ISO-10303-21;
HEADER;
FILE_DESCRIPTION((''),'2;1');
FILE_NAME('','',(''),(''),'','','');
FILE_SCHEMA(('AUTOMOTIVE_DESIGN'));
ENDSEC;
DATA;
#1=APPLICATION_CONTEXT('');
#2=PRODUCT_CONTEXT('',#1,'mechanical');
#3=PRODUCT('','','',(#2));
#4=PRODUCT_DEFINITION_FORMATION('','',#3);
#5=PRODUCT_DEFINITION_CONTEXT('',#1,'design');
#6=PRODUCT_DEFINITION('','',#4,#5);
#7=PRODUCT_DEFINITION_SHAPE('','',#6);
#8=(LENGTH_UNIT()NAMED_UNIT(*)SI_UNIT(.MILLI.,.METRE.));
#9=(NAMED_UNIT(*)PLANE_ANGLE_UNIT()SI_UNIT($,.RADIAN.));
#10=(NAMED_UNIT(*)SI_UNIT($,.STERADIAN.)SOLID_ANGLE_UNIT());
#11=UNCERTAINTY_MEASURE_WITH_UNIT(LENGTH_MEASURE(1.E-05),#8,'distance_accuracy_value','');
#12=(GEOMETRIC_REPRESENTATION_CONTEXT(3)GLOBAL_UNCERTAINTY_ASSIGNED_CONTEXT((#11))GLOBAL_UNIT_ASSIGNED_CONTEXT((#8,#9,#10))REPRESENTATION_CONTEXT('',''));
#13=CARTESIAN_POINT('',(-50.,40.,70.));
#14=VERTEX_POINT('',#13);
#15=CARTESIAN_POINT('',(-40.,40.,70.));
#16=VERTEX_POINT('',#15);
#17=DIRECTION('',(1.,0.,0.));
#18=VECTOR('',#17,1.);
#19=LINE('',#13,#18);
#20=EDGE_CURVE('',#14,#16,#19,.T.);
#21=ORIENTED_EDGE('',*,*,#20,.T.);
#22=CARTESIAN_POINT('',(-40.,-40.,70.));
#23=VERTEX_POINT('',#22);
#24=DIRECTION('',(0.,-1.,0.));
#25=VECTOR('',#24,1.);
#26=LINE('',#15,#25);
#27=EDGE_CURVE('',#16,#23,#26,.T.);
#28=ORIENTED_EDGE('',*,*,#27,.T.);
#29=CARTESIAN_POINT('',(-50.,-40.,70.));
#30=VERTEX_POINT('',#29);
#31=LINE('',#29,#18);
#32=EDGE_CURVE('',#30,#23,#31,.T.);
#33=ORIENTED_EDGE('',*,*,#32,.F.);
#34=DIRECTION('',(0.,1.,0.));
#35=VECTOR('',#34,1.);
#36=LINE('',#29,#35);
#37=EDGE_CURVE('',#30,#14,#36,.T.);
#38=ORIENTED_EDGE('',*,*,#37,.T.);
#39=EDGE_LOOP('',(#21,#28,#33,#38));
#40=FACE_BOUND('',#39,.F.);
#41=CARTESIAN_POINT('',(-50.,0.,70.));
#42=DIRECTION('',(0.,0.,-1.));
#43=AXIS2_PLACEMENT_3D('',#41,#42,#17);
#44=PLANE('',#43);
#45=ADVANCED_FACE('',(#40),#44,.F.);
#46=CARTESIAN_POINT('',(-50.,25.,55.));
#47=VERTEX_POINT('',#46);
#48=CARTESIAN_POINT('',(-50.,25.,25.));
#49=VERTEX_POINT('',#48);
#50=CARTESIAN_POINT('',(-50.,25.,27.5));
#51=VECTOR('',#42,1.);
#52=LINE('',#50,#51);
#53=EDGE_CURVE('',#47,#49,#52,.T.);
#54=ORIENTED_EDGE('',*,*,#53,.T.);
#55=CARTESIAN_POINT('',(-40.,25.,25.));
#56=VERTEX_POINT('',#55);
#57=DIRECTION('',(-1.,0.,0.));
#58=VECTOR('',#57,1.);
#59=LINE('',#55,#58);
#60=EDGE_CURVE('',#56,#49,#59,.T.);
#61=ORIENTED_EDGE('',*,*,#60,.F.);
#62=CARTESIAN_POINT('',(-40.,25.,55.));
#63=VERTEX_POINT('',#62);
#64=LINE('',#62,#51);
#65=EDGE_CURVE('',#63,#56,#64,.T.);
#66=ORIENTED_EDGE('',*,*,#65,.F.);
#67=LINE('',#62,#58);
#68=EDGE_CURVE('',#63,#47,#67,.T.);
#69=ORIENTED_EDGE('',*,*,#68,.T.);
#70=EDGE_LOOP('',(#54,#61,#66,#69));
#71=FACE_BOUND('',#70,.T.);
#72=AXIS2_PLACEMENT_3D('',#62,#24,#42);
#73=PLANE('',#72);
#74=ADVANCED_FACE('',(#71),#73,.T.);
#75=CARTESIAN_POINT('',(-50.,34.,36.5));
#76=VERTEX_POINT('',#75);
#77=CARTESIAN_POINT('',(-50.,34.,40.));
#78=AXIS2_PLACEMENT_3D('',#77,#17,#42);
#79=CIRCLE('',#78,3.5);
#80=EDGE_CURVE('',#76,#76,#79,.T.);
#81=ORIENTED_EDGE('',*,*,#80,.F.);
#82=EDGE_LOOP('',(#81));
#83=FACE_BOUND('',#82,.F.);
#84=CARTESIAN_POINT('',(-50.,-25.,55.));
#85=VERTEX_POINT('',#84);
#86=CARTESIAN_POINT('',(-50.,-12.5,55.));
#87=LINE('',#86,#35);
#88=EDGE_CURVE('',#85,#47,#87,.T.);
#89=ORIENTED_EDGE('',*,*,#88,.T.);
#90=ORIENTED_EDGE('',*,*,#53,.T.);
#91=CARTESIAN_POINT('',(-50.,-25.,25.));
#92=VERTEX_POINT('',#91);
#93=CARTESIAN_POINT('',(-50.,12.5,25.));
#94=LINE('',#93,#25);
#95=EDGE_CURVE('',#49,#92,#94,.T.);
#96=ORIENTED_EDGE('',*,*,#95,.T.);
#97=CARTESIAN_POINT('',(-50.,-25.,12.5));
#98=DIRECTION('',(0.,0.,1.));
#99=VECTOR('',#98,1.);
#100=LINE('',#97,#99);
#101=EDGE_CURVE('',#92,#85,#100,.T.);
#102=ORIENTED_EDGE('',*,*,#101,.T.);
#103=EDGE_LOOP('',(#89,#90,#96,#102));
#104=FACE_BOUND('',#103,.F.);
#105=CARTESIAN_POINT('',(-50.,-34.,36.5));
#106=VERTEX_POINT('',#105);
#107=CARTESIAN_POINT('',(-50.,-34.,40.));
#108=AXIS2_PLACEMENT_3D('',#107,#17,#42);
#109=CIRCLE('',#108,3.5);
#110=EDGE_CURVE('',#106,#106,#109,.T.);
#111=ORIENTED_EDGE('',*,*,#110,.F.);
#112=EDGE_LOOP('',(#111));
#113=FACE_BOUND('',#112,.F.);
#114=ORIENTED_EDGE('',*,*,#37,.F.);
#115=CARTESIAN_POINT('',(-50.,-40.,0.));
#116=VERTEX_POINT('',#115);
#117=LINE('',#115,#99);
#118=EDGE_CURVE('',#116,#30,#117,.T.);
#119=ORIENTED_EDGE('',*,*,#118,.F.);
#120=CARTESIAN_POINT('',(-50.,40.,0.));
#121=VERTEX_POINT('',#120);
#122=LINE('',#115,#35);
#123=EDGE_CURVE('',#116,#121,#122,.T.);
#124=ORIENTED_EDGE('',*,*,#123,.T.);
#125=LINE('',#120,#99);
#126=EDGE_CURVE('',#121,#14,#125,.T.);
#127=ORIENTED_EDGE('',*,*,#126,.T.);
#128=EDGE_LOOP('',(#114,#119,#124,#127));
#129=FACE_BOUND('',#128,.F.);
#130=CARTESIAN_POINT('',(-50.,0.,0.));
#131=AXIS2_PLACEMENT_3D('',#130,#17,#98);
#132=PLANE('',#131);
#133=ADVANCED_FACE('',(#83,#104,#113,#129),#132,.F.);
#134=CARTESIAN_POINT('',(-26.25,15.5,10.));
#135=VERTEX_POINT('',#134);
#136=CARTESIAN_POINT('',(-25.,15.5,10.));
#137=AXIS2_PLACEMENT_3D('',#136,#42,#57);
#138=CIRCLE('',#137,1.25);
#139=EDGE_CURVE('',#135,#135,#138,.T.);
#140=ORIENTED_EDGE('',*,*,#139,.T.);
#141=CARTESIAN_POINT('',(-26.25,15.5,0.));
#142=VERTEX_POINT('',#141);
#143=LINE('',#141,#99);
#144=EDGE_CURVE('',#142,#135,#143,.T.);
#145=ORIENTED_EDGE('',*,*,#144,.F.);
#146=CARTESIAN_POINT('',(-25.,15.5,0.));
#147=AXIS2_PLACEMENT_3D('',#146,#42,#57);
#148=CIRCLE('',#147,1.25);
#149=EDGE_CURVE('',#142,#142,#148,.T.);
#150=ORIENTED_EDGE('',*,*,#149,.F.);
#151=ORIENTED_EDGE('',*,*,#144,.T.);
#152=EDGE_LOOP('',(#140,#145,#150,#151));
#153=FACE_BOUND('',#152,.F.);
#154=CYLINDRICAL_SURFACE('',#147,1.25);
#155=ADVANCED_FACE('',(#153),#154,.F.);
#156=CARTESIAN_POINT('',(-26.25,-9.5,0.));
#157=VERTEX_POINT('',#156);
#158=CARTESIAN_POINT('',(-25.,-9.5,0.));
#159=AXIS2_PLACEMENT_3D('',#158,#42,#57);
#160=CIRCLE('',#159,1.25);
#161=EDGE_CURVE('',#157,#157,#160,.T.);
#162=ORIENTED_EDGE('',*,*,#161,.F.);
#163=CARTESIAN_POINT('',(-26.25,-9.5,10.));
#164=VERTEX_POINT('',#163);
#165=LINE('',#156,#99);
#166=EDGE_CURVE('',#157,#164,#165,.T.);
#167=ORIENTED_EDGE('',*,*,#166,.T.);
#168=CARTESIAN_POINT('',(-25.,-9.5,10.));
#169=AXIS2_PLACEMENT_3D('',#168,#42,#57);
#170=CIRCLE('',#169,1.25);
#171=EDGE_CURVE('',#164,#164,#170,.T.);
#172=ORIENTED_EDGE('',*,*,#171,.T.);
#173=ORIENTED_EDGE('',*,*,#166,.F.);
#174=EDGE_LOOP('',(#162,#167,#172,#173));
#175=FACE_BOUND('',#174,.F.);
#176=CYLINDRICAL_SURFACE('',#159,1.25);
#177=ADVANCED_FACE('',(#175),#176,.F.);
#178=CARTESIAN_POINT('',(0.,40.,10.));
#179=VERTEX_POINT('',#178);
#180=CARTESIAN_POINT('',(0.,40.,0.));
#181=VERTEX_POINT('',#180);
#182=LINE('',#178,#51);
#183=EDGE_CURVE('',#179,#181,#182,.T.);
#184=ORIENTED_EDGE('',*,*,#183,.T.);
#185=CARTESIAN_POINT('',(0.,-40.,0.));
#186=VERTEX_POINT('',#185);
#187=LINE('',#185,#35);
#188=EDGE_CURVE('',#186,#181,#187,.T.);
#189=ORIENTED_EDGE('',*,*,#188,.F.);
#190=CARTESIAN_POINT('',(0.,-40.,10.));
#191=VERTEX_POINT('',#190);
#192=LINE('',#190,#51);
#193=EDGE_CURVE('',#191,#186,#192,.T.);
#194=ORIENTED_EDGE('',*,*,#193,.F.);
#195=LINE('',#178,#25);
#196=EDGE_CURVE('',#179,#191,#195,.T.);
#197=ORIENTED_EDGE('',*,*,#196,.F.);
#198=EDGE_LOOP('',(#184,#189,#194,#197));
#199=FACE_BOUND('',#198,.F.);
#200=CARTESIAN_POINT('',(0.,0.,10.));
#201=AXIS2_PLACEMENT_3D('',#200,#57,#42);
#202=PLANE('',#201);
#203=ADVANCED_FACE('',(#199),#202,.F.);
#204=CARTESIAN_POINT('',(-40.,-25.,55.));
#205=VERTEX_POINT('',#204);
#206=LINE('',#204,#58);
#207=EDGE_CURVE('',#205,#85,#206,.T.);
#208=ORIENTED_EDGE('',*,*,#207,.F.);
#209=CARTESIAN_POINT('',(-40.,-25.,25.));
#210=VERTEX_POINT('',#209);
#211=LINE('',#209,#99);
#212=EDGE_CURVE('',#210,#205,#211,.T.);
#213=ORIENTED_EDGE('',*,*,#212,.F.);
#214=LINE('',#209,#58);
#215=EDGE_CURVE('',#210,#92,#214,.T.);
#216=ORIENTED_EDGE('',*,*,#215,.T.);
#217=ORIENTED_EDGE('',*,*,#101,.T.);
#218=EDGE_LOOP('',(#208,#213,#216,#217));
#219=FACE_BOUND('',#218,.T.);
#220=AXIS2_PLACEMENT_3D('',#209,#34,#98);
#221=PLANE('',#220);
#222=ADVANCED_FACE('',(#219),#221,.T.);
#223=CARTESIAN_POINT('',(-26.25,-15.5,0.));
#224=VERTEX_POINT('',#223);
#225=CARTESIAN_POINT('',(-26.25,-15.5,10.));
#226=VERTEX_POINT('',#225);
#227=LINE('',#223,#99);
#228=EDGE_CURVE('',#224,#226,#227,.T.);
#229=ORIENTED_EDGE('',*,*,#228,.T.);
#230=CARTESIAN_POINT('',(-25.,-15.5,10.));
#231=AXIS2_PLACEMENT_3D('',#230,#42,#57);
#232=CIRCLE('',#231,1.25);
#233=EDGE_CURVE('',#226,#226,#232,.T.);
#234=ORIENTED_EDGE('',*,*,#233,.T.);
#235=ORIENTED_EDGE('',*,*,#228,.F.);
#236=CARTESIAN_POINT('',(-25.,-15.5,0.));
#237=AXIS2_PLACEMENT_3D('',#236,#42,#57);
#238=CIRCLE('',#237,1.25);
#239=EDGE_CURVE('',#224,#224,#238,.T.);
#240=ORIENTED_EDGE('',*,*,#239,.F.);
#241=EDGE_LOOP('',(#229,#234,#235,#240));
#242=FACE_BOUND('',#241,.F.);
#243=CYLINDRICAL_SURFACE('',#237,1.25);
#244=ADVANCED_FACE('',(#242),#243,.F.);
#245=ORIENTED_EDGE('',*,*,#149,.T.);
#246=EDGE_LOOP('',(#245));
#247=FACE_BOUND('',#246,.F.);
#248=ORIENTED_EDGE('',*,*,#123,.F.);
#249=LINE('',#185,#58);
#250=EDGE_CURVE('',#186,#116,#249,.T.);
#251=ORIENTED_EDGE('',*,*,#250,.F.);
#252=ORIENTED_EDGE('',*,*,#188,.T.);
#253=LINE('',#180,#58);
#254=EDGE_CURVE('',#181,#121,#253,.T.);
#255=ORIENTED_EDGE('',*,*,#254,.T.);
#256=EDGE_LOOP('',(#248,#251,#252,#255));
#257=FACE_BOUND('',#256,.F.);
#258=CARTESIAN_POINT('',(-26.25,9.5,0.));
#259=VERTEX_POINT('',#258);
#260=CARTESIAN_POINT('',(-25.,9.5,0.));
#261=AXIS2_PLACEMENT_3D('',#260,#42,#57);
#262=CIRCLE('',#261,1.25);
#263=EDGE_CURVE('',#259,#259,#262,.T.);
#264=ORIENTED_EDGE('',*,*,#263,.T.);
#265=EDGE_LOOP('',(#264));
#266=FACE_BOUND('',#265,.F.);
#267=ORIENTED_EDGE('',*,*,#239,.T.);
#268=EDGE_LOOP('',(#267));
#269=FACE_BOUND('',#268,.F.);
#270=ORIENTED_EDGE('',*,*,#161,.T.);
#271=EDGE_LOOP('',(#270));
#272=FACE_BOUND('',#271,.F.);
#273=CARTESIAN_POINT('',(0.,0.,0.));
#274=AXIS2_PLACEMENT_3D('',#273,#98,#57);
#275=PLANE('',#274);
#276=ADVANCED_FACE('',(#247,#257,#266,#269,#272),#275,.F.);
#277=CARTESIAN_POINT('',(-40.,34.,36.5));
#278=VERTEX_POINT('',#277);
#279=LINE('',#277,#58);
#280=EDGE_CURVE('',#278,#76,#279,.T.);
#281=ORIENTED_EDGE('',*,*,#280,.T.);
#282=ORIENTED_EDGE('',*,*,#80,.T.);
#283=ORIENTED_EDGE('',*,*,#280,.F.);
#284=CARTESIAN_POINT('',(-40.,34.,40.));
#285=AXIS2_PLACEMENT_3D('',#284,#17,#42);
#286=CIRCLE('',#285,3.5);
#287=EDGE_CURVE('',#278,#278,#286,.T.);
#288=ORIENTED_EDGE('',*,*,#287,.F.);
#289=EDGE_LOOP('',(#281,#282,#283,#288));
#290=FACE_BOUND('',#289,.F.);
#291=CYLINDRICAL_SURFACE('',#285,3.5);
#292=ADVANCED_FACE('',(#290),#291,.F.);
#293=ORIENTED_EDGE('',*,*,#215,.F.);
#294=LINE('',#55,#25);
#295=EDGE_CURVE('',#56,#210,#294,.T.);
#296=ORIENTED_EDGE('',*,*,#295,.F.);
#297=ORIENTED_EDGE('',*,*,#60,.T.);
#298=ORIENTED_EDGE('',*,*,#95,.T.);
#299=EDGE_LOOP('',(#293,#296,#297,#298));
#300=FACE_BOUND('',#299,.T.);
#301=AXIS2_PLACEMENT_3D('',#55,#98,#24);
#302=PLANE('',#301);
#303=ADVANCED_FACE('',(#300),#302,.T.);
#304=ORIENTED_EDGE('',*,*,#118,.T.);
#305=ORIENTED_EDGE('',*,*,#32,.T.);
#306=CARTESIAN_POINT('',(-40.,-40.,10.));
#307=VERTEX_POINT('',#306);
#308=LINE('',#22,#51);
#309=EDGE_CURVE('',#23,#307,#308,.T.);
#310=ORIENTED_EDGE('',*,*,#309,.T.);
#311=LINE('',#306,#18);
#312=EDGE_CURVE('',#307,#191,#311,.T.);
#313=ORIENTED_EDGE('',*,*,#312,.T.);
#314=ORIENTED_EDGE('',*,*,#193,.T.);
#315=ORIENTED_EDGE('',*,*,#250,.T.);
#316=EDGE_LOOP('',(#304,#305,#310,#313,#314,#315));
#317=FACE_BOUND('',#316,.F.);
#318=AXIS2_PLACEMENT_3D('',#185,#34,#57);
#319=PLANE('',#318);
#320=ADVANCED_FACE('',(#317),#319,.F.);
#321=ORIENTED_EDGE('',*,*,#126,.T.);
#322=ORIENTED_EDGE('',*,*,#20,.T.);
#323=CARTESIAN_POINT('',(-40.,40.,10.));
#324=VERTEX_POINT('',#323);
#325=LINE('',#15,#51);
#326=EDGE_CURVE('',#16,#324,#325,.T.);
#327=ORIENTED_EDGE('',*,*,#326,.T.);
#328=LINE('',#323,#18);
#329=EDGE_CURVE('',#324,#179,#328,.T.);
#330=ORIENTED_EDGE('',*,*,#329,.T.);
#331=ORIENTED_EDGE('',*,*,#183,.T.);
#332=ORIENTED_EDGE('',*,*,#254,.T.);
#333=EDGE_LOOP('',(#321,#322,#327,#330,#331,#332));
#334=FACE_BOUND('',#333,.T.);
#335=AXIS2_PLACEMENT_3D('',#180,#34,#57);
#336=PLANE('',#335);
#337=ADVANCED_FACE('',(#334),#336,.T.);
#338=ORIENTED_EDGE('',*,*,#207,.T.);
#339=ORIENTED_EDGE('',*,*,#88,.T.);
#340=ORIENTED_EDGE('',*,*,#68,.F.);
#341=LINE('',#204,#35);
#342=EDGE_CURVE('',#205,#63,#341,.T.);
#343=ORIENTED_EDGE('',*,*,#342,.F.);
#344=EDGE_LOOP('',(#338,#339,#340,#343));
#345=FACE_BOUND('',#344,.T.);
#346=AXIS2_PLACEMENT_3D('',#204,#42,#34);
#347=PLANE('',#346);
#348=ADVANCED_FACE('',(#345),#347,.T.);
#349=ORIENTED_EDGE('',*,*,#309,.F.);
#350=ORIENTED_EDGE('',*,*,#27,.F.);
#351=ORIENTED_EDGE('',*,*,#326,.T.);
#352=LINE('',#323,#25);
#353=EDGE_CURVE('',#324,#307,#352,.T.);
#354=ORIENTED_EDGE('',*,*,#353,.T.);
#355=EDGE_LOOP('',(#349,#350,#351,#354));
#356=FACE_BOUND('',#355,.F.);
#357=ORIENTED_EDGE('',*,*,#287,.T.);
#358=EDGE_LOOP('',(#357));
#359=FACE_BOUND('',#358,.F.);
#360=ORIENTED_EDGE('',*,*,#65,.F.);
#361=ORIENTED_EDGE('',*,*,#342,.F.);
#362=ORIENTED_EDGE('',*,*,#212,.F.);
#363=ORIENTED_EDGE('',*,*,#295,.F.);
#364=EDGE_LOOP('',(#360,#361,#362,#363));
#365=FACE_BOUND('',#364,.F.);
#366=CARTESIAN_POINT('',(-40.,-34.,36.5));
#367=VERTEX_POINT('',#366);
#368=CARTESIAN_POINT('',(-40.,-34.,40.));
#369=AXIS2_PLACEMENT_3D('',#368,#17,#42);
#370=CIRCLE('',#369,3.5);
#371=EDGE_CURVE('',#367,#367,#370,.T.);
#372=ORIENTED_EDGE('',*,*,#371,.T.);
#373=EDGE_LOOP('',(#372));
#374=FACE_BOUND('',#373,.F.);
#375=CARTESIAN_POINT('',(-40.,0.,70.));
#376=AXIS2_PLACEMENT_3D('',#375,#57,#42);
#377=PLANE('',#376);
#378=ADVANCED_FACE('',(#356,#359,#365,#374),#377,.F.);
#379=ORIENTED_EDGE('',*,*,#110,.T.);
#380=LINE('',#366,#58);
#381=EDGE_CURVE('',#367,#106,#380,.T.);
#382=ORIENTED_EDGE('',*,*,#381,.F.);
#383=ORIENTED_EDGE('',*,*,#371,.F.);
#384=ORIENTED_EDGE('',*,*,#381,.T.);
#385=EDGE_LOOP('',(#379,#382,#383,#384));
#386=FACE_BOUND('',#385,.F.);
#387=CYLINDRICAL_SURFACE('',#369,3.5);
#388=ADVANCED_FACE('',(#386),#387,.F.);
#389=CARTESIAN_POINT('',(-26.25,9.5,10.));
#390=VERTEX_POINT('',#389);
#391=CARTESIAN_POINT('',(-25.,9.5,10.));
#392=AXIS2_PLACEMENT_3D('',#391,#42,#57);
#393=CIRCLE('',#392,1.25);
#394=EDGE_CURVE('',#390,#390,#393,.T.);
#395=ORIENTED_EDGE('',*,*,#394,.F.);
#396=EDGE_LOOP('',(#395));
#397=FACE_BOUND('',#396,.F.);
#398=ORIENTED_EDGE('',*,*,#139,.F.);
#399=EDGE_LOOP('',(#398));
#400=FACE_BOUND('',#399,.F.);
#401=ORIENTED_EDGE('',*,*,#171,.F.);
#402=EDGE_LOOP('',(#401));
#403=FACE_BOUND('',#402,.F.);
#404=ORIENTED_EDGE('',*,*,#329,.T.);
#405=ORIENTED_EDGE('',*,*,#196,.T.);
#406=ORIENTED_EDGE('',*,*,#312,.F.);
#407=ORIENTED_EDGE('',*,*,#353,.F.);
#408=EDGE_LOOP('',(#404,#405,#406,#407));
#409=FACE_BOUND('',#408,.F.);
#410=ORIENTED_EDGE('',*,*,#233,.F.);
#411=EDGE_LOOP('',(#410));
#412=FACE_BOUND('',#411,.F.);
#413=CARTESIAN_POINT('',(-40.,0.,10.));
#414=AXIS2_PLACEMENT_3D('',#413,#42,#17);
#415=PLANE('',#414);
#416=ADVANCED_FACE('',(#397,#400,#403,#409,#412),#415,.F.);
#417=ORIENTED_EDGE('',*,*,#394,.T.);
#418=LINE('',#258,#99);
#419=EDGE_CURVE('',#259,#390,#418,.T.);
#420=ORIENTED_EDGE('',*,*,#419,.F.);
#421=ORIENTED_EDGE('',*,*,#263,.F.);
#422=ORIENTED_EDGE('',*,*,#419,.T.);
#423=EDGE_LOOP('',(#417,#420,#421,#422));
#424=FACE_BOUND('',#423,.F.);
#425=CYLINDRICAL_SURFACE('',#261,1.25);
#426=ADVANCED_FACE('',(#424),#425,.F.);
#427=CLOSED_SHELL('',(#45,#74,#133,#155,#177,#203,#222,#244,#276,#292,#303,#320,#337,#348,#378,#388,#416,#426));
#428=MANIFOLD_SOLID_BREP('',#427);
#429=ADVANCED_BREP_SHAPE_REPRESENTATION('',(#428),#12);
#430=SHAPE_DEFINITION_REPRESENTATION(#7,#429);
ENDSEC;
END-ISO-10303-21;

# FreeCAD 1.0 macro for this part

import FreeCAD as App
import Part
import Sketcher
Q = App.Units.Quantity

doc = App.newDocument("Part")
params = doc.addObject("Spreadsheet::Sheet", "Params")
for row, (alias, value) in enumerate([
    ("sketch1_width", "50 mm"),
    ("sketch1_width2", "10 mm"),
    ("sketch1_height", "70 mm"),
    ("pad1_length", "80 mm"),
    ("sketch2_width", "50 mm"),
    ("sketch2_height", "30 mm"),
    ("sketch3_diameter", "7 mm"),
    ("sketch4_diameter", "2.5 mm"),
], start=1):
    params.set(f"A{row}", alias)
    params.set(f"B{row}", "=" + value)
    params.setAlias(f"B{row}", alias)

body = doc.addObject("PartDesign::Body", "Body")

sketch1 = body.newObject("Sketcher::SketchObject", "Sketch")
sketch1.AttachmentSupport = (doc.getObject("XZ_Plane"), [""])
sketch1.MapMode = "FlatFace"
sketch1.addGeometry(Part.LineSegment(App.Vector(0, 10, 0), App.Vector(0, 0, 0)), False)
sketch1.addGeometry(Part.LineSegment(App.Vector(0, 0, 0), App.Vector(-50, 0, 0)), False)
sketch1.addGeometry(Part.LineSegment(App.Vector(-50, 0, 0), App.Vector(-50, 70, 0)), False)
sketch1.addGeometry(Part.LineSegment(App.Vector(-50, 70, 0), App.Vector(-40, 70, 0)), False)
sketch1.addGeometry(Part.LineSegment(App.Vector(-40, 70, 0), App.Vector(-40, 10, 0)), False)
sketch1.addGeometry(Part.LineSegment(App.Vector(-40, 10, 0), App.Vector(0, 10, 0)), False)
sketch1.addConstraint(Sketcher.Constraint("Coincident", 0, 2, 1, 1))
sketch1.addConstraint(Sketcher.Constraint("Coincident", 1, 2, 2, 1))
sketch1.addConstraint(Sketcher.Constraint("Coincident", 2, 2, 3, 1))
sketch1.addConstraint(Sketcher.Constraint("Coincident", 3, 2, 4, 1))
sketch1.addConstraint(Sketcher.Constraint("Coincident", 4, 2, 5, 1))
sketch1.addConstraint(Sketcher.Constraint("Coincident", 5, 2, 0, 1))
sketch1.addConstraint(Sketcher.Constraint("Vertical", 0))
sketch1.addConstraint(Sketcher.Constraint("Horizontal", 1))
sketch1.addConstraint(Sketcher.Constraint("Vertical", 2))
sketch1.addConstraint(Sketcher.Constraint("Horizontal", 3))
sketch1.addConstraint(Sketcher.Constraint("Vertical", 4))
sketch1.addConstraint(Sketcher.Constraint("Horizontal", 5))
sketch1.addConstraint(Sketcher.Constraint("Coincident", 0, 2, -1, 1))
sketch1.addConstraint(Sketcher.Constraint("Equal", 3, 0))
sketch1.addConstraint(Sketcher.Constraint("DistanceX", 1, 2, 1, 1, Q("50 mm")))
sketch1.addConstraint(Sketcher.Constraint("DistanceX", 3, 1, 3, 2, Q("10 mm")))
sketch1.addConstraint(Sketcher.Constraint("DistanceY", 2, 1, 2, 2, Q("70 mm")))
sketch1.setExpression("Constraints[14]", "Params.sketch1_width")
sketch1.setExpression("Constraints[15]", "Params.sketch1_width2")
sketch1.setExpression("Constraints[16]", "Params.sketch1_height")
pad1 = body.newObject("PartDesign::Pad", "Pad")
pad1.Profile = sketch1
pad1.setExpression("Length", "Params.pad1_length")
pad1.Midplane = True

sketch2 = body.newObject("Sketcher::SketchObject", "Sketch001")
sketch2.AttachmentSupport = (doc.getObject("YZ_Plane"), [""])
sketch2.MapMode = "FlatFace"
sketch2.AttachmentOffset = App.Placement(App.Vector(0, 0, -40), App.Rotation())
sketch2.addGeometry(Part.LineSegment(App.Vector(25, 25, 0), App.Vector(25, 55, 0)), False)
sketch2.addGeometry(Part.LineSegment(App.Vector(25, 55, 0), App.Vector(-25, 55, 0)), False)
sketch2.addGeometry(Part.LineSegment(App.Vector(-25, 55, 0), App.Vector(-25, 25, 0)), False)
sketch2.addGeometry(Part.LineSegment(App.Vector(-25, 25, 0), App.Vector(25, 25, 0)), False)
sketch2.addConstraint(Sketcher.Constraint("Coincident", 0, 2, 1, 1))
sketch2.addConstraint(Sketcher.Constraint("Coincident", 1, 2, 2, 1))
sketch2.addConstraint(Sketcher.Constraint("Coincident", 2, 2, 3, 1))
sketch2.addConstraint(Sketcher.Constraint("Coincident", 3, 2, 0, 1))
sketch2.addConstraint(Sketcher.Constraint("Vertical", 0))
sketch2.addConstraint(Sketcher.Constraint("Horizontal", 1))
sketch2.addConstraint(Sketcher.Constraint("Vertical", 2))
sketch2.addConstraint(Sketcher.Constraint("Horizontal", 3))
sketch2.addConstraint(Sketcher.Constraint("DistanceX", 1, 2, 1, 1, Q("50 mm")))
sketch2.addConstraint(Sketcher.Constraint("DistanceY", 0, 1, 0, 2, Q("30 mm")))
sketch2.addConstraint(Sketcher.Constraint("DistanceX", -1, 1, 0, 2, Q("25 mm")))
sketch2.addConstraint(Sketcher.Constraint("DistanceY", -1, 1, 0, 2, Q("55 mm")))
sketch2.setExpression("Constraints[8]", "Params.sketch2_width")
sketch2.setExpression("Constraints[9]", "Params.sketch2_height")
pocket1 = body.newObject("PartDesign::Pocket", "Pocket")
pocket1.Profile = sketch2
pocket1.Type = "ThroughAll"

sketch3 = body.newObject("Sketcher::SketchObject", "Sketch002")
sketch3.AttachmentSupport = (doc.getObject("YZ_Plane"), [""])
sketch3.MapMode = "FlatFace"
sketch3.AttachmentOffset = App.Placement(App.Vector(0, 0, -40), App.Rotation())
sketch3.addGeometry(Part.Circle(App.Vector(34, 40, 0), App.Vector(0, 0, 1), 3.5), False)
sketch3.addGeometry(Part.Circle(App.Vector(-34, 40, 0), App.Vector(0, 0, 1), 3.5), False)
sketch3.addConstraint(Sketcher.Constraint("Equal", 0, 1))
sketch3.addConstraint(Sketcher.Constraint("Symmetric", 0, 3, 1, 3, -2))
sketch3.addConstraint(Sketcher.Constraint("Diameter", 0, Q("7 mm")))
sketch3.addConstraint(Sketcher.Constraint("DistanceX", 1, 3, 0, 3, Q("68 mm")))
sketch3.addConstraint(Sketcher.Constraint("DistanceY", -1, 1, 0, 3, Q("40 mm")))
sketch3.setExpression("Constraints[2]", "Params.sketch3_diameter")
pocket2 = body.newObject("PartDesign::Pocket", "Pocket001")
pocket2.Profile = sketch3
pocket2.Type = "ThroughAll"

sketch4 = body.newObject("Sketcher::SketchObject", "Sketch003")
sketch4.AttachmentSupport = (doc.getObject("XY_Plane"), [""])
sketch4.MapMode = "FlatFace"
sketch4.addGeometry(Part.Circle(App.Vector(-25, 15.5, 0), App.Vector(0, 0, 1), 1.2), False)
sketch4.addGeometry(Part.Circle(App.Vector(-25, 9.5, 0), App.Vector(0, 0, 1), 1.2), False)
sketch4.addGeometry(Part.Circle(App.Vector(-25, -9.5, 0), App.Vector(0, 0, 1), 1.2), False)
sketch4.addGeometry(Part.Circle(App.Vector(-25, -15.5, 0), App.Vector(0, 0, 1), 1.2), False)
sketch4.addConstraint(Sketcher.Constraint("Equal", 0, 1))
sketch4.addConstraint(Sketcher.Constraint("Equal", 1, 2))
sketch4.addConstraint(Sketcher.Constraint("Equal", 2, 3))
sketch4.addConstraint(Sketcher.Constraint("Symmetric", 1, 3, 2, 3, -1))
sketch4.addConstraint(Sketcher.Constraint("Symmetric", 0, 3, 3, 3, -1))
sketch4.addConstraint(Sketcher.Constraint("Vertical", 0, 3, 1, 3))
sketch4.addConstraint(Sketcher.Constraint("Diameter", 0, Q("2.5 mm")))
sketch4.addConstraint(Sketcher.Constraint("DistanceX", 0, 3, -1, 1, Q("25 mm")))
sketch4.addConstraint(Sketcher.Constraint("DistanceY", 1, 3, 0, 3, Q("6 mm")))
sketch4.addConstraint(Sketcher.Constraint("DistanceY", 2, 3, 1, 3, Q("19 mm")))
sketch4.setExpression("Constraints[6]", "Params.sketch4_diameter")
pocket3 = body.newObject("PartDesign::Pocket", "Pocket002")
pocket3.Profile = sketch4
pocket3.Type = "ThroughAll"
pocket3.Reversed = True

doc.recompute()
